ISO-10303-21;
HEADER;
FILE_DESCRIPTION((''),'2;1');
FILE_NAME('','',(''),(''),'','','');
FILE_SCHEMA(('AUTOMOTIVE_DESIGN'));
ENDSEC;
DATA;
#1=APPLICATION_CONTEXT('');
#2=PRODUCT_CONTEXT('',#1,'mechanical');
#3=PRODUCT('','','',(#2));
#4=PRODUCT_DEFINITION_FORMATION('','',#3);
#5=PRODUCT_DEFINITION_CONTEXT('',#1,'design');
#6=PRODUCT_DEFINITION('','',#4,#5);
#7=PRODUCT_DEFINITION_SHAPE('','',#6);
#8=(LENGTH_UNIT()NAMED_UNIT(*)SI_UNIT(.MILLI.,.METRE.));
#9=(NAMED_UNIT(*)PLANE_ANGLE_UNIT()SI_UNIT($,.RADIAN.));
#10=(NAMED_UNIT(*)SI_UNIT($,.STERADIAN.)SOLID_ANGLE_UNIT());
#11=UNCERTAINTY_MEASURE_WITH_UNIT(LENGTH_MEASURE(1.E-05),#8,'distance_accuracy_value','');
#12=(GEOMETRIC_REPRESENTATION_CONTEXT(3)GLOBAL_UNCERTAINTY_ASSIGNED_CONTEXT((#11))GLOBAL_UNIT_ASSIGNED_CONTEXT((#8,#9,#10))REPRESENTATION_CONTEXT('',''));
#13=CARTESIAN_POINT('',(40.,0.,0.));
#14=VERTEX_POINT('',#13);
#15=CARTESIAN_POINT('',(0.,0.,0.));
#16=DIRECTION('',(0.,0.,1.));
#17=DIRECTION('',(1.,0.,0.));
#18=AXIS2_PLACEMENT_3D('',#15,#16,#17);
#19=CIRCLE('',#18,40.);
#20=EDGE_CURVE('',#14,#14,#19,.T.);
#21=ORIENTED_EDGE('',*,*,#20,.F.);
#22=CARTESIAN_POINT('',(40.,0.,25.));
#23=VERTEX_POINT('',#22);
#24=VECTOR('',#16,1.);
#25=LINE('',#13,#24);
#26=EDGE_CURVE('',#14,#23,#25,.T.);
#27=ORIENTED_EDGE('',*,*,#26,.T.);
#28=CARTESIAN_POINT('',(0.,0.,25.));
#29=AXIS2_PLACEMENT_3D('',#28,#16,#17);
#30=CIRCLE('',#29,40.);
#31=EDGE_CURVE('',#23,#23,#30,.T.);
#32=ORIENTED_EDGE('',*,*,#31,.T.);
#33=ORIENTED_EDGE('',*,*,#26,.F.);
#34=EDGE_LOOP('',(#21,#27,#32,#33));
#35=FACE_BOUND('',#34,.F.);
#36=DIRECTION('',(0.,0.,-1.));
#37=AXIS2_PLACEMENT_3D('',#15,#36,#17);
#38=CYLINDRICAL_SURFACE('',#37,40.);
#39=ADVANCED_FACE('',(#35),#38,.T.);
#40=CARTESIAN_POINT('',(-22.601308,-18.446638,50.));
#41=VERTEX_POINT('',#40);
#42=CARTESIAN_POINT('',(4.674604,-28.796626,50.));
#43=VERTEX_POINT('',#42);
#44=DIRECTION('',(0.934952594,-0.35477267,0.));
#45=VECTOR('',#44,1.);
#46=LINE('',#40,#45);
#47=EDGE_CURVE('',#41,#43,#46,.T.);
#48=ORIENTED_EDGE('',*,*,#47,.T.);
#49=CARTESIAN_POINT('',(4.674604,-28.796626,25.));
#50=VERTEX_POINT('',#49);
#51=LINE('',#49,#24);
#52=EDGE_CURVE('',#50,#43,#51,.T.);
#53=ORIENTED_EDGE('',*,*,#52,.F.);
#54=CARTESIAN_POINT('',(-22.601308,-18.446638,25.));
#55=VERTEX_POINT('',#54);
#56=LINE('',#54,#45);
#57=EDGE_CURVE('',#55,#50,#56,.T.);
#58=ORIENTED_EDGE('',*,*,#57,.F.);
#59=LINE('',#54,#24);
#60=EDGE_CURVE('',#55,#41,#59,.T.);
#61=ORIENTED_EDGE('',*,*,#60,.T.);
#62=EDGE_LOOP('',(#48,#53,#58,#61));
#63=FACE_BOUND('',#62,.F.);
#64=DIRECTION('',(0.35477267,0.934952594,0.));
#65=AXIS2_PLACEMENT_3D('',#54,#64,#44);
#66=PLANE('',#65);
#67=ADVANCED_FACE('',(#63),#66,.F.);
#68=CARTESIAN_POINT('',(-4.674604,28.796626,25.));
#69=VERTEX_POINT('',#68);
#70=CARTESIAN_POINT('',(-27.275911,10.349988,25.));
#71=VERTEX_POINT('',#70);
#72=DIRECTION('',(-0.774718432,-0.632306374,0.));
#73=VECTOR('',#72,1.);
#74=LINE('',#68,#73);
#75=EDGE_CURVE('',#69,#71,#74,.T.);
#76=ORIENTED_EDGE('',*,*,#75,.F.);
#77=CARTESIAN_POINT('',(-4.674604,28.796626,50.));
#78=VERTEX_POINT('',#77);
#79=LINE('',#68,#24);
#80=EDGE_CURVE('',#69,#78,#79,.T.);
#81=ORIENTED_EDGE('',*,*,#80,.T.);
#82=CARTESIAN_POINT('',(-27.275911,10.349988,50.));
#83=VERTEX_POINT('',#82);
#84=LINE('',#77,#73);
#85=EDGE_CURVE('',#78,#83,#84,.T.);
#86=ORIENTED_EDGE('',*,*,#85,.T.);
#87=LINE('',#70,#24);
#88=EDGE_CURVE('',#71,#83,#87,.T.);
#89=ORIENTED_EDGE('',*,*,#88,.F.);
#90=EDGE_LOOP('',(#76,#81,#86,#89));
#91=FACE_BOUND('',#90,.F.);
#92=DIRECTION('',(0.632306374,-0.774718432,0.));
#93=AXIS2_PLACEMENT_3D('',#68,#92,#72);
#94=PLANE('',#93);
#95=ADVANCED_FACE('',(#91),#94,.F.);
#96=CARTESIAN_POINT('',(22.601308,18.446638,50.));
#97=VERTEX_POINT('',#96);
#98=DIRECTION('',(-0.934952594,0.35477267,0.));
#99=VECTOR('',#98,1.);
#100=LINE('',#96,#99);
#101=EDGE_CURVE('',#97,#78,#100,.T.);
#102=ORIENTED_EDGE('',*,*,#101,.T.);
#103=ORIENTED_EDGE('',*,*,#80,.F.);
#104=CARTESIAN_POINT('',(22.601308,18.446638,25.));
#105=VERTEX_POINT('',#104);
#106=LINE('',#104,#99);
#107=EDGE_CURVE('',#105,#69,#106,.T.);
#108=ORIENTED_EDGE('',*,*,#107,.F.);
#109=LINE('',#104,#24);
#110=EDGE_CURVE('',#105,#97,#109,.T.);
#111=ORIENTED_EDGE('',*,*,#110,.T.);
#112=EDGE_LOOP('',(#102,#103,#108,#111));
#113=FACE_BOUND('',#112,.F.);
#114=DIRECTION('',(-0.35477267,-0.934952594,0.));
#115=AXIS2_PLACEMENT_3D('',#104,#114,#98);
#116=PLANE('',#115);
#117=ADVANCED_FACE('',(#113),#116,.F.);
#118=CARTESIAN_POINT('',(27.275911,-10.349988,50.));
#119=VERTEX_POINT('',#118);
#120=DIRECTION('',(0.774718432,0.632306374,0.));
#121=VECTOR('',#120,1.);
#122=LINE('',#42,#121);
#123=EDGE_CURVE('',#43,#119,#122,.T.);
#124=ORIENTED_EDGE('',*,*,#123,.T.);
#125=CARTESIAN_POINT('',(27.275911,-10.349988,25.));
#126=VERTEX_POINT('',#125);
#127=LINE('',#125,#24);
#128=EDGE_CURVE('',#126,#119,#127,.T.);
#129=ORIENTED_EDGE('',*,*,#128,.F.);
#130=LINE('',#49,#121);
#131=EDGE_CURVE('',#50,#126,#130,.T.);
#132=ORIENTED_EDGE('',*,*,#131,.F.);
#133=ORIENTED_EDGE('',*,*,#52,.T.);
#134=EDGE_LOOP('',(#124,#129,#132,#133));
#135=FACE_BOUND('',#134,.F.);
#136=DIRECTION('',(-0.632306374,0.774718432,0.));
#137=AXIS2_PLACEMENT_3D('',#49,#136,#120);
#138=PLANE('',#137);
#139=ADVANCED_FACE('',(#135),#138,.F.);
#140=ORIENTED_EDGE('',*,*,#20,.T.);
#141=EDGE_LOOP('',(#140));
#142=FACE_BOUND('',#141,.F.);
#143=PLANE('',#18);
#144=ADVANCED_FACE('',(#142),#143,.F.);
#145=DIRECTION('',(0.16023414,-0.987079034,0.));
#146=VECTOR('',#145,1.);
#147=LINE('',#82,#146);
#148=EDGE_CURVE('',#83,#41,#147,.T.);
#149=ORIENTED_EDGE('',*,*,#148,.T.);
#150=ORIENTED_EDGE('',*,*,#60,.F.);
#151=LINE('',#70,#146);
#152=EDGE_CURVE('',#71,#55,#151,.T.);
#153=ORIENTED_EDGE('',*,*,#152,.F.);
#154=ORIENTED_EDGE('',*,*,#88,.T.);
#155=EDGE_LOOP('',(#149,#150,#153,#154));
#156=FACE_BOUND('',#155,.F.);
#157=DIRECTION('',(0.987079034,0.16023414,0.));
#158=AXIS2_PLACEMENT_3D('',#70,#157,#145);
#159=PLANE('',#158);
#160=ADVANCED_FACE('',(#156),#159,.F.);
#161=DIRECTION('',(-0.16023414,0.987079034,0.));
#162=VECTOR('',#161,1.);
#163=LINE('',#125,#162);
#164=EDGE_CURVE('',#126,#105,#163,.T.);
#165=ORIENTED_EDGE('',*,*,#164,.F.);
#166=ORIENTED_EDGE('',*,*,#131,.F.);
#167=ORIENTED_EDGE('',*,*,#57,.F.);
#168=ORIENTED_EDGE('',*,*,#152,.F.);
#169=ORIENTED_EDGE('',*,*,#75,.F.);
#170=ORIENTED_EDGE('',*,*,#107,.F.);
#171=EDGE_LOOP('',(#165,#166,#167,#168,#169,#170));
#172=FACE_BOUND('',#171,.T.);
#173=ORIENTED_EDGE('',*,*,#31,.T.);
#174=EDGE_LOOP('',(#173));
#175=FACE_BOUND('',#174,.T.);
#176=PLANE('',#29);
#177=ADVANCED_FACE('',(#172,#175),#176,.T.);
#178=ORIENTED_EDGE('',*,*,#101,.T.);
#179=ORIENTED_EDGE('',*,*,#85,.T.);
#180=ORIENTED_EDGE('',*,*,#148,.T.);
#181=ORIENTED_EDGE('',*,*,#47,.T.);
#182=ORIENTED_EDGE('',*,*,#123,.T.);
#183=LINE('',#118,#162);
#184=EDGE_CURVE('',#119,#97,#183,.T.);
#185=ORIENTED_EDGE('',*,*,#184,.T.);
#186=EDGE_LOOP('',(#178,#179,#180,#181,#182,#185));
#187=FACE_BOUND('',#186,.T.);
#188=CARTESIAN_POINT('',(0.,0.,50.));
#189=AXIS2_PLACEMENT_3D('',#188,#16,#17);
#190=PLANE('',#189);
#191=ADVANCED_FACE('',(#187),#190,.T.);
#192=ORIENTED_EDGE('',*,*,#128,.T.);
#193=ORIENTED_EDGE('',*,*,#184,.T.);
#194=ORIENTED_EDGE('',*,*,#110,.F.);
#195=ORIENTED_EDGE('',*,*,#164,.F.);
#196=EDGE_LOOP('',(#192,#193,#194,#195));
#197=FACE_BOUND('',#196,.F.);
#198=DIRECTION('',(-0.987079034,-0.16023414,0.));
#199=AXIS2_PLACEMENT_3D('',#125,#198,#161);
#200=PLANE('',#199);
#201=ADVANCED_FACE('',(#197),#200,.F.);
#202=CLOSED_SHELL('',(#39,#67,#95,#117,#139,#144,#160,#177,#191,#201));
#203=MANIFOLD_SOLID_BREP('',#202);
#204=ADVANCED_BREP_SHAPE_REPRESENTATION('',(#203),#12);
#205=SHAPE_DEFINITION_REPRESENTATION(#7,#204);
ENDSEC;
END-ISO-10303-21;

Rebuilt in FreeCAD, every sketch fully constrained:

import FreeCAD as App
import Part
import Sketcher
from FreeCAD import Vector


def add_polygon(sketch, points):
    """Adds a closed chain of lines whose ends are joined by coincident constraints."""
    first, n = sketch.GeometryCount, len(points)
    for a, b in zip(points, points[1:] + points[:1]):
        sketch.addGeometry(Part.LineSegment(App.Vector(*a, 0), App.Vector(*b, 0)), False)
    for i in range(n):
        sketch.addConstraint(Sketcher.Constraint("Coincident", first + i, 2, first + (i + 1) % n, 1))

doc = App.newDocument("Part")
params = doc.addObject("Spreadsheet::Sheet", "Params")
for row, (alias, value) in enumerate([
    ("sketch1_diameter", "80 mm"),
    ("pad1_length", "25 mm"),
    ("pad2_length", "25 mm"),
], start=1):
    params.set(f"A{row}", alias)
    params.set(f"B{row}", "=" + value)
    params.setAlias(f"B{row}", alias)

body = doc.addObject("PartDesign::Body", "Body")

# Sketch on XY plane
sketch1 = body.newObject("Sketcher::SketchObject", "Sketch")
sketch1.AttachmentSupport = (doc.getObject("XY_Plane"), [""])
sketch1.MapMode = "FlatFace"
sketch1.addGeometry(Part.Circle(Vector(0, 0, 0), Vector(0, 0, 1), 40), False)
sketch1.addConstraint(Sketcher.Constraint("Coincident", 0, 3, -1, 1))
sketch1.addConstraint(Sketcher.Constraint("Diameter", 0, 80.0))
sketch1.setExpression("Constraints[1]", "Params.sketch1_diameter")
pad1 = body.newObject("PartDesign::Pad", "Pad")
pad1.Profile = sketch1
pad1.setExpression("Length", "Params.pad1_length")

# Sketch on XY plane
sketch2 = body.newObject("Sketcher::SketchObject", "Sketch001")
sketch2.AttachmentSupport = (doc.getObject("XY_Plane"), [""])
sketch2.MapMode = "FlatFace"
sketch2.AttachmentOffset = App.Placement(Vector(0, 0, 25), App.Rotation())
add_polygon(sketch2, [(-4.674604, 28.796626), (-27.275911, 10.349988), (-22.601308, -18.446638), (4.674604, -28.796626), (27.275911, -10.349988), (22.601308, 18.446638)])  # lines 0-5
sketch2.addConstraint(Sketcher.Constraint("Symmetric", 0, 2, 3, 2, -1, 1))
sketch2.addConstraint(Sketcher.Constraint("Symmetric", 1, 2, 4, 2, -1, 1))
sketch2.addConstraint(Sketcher.Constraint("Symmetric", 2, 2, 5, 2, -1, 1))
sketch2.addConstraint(Sketcher.Constraint("Equal", 0, 1))
sketch2.addConstraint(Sketcher.Constraint("Equal", 1, 2))
sketch2.addConstraint(Sketcher.Constraint("DistanceX", 0, 2, -1, 1, 27.275911))
sketch2.addConstraint(Sketcher.Constraint("DistanceY", 1, 2, -1, 1, 18.446638))
sketch2.addConstraint(Sketcher.Constraint("DistanceX", 1, 2, 2, 2, 27.275912))
sketch2.addConstraint(Sketcher.Constraint("DistanceY", 2, 2, 3, 2, 18.446638))
pad2 = body.newObject("PartDesign::Pad", "Pad001")
pad2.Profile = sketch2
pad2.setExpression("Length", "Params.pad2_length")

doc.recompute()
